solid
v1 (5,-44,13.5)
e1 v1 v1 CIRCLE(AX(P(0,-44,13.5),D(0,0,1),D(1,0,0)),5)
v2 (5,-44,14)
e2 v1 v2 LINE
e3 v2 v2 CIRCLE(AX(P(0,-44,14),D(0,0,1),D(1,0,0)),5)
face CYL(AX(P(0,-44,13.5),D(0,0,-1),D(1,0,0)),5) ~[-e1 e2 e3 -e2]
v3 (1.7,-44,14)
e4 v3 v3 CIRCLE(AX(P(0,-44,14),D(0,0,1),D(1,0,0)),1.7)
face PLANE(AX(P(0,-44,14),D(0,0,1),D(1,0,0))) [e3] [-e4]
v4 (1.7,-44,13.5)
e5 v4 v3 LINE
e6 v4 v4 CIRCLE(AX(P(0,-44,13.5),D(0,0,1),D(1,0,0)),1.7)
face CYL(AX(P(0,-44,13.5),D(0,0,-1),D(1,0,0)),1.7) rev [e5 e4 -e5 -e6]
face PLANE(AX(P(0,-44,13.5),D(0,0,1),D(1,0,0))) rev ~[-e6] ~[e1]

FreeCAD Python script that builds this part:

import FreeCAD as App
import Part
import Sketcher

V = App.Vector

doc = App.newDocument("Part")
body = doc.addObject("PartDesign::Body", "Body")

sketch1 = doc.addObject("Sketcher::SketchObject", "Sketch")
body.addObject(sketch1)
sketch1.AttachmentSupport = (doc.XY_Plane, [""])
sketch1.MapMode = "FlatFace"
sketch1.AttachmentOffset = App.Placement(V(0, 0, 13.5), App.Rotation())
sketch1.addGeometry(Part.Circle(V(0, -44, 0), V(0, 0, 1), 1.7), False)
sketch1.addConstraint([
    Sketcher.Constraint("PointOnObject", 0, 3, -2),
    Sketcher.Constraint("Diameter", 0, 3.4),
    Sketcher.Constraint("DistanceY", 0, 3, -1, 1, 44.0),
])
pad1 = doc.addObject("PartDesign::Pad", "Pad")
body.addObject(pad1)
pad1.Profile = sketch1
pad1.Length = 0.5
body2 = doc.addObject("PartDesign::Body", "Body001")

sketch2 = doc.addObject("Sketcher::SketchObject", "Sketch001")
body2.addObject(sketch2)
sketch2.AttachmentSupport = (doc.getObject("XY_Plane001"), [""])
sketch2.MapMode = "FlatFace"
sketch2.AttachmentOffset = App.Placement(V(0, 0, 13.5), App.Rotation())
sketch2.addGeometry(Part.Circle(V(0, -44, 0), V(0, 0, 1), 5), False)
sketch2.addConstraint([
    Sketcher.Constraint("PointOnObject", 0, 3, -2),
    Sketcher.Constraint("Diameter", 0, 10.0),
    Sketcher.Constraint("DistanceY", 0, 3, -1, 1, 44.0),
])
pad2 = doc.addObject("PartDesign::Pad", "Pad001")
body2.addObject(pad2)
pad2.Profile = sketch2
pad2.Length = 0.5
doc.recompute()

boolean = doc.addObject("PartDesign::Boolean", "Boolean")
body2.addObject(boolean)
boolean.Type = "Cut"
boolean.addObjects([body])

doc.recompute()
